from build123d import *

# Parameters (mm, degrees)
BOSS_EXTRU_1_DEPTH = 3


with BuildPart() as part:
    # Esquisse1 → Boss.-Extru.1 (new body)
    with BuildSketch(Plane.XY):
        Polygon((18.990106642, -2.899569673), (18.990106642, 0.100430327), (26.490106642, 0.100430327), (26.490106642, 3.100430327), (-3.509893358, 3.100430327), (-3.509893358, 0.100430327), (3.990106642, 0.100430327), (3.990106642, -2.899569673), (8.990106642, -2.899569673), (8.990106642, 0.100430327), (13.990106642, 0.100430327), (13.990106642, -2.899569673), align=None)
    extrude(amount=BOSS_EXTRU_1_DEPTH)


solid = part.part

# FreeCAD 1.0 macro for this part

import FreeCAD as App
import Part
import Sketcher
Q = App.Units.Quantity

doc = App.newDocument("Part")
body = doc.addObject("PartDesign::Body", "Body")

# Sketch on XY plane
sketch1 = body.newObject("Sketcher::SketchObject", "Sketch")
sketch1.AttachmentSupport = (doc.getObject("XY_Plane"), [""])
sketch1.MapMode = "FlatFace"
sketch1.addGeometry(Part.LineSegment(App.Vector(19, -2.9, 0), App.Vector(19, 0.1, 0)), False)
sketch1.addGeometry(Part.LineSegment(App.Vector(19, 0.1, 0), App.Vector(26.5, 0.1, 0)), False)
sketch1.addGeometry(Part.LineSegment(App.Vector(26.5, 0.1, 0), App.Vector(26.5, 3.1, 0)), False)
sketch1.addGeometry(Part.LineSegment(App.Vector(26.5, 3.1, 0), App.Vector(-3.5, 3.1, 0)), False)
sketch1.addGeometry(Part.LineSegment(App.Vector(-3.5, 3.1, 0), App.Vector(-3.5, 0.1, 0)), False)
sketch1.addGeometry(Part.LineSegment(App.Vector(-3.5, 0.1, 0), App.Vector(4, 0.1, 0)), False)
sketch1.addGeometry(Part.LineSegment(App.Vector(4, 0.1, 0), App.Vector(4, -2.9, 0)), False)
sketch1.addGeometry(Part.LineSegment(App.Vector(4, -2.9, 0), App.Vector(9, -2.9, 0)), False)
sketch1.addGeometry(Part.LineSegment(App.Vector(9, -2.9, 0), App.Vector(9, 0.1, 0)), False)
sketch1.addGeometry(Part.LineSegment(App.Vector(9, 0.1, 0), App.Vector(14, 0.1, 0)), False)
sketch1.addGeometry(Part.LineSegment(App.Vector(14, 0.1, 0), App.Vector(14, -2.9, 0)), False)
sketch1.addGeometry(Part.LineSegment(App.Vector(14, -2.9, 0), App.Vector(19, -2.9, 0)), False)
sketch1.addConstraint(Sketcher.Constraint("Coincident", 0, 2, 1, 1))
sketch1.addConstraint(Sketcher.Constraint("Coincident", 1, 2, 2, 1))
sketch1.addConstraint(Sketcher.Constraint("Coincident", 2, 2, 3, 1))
sketch1.addConstraint(Sketcher.Constraint("Coincident", 3, 2, 4, 1))
sketch1.addConstraint(Sketcher.Constraint("Coincident", 4, 2, 5, 1))
sketch1.addConstraint(Sketcher.Constraint("Coincident", 5, 2, 6, 1))
sketch1.addConstraint(Sketcher.Constraint("Coincident", 6, 2, 7, 1))
sketch1.addConstraint(Sketcher.Constraint("Coincident", 7, 2, 8, 1))
sketch1.addConstraint(Sketcher.Constraint("Coincident", 8, 2, 9, 1))
sketch1.addConstraint(Sketcher.Constraint("Coincident", 9, 2, 10, 1))
sketch1.addConstraint(Sketcher.Constraint("Coincident", 10, 2, 11, 1))
sketch1.addConstraint(Sketcher.Constraint("Coincident", 11, 2, 0, 1))
sketch1.addConstraint(Sketcher.Constraint("Vertical", 0))
sketch1.addConstraint(Sketcher.Constraint("Horizontal", 1))
sketch1.addConstraint(Sketcher.Constraint("Vertical", 2))
sketch1.addConstraint(Sketcher.Constraint("Horizontal", 3))
sketch1.addConstraint(Sketcher.Constraint("Vertical", 4))
sketch1.addConstraint(Sketcher.Constraint("Horizontal", 5))
sketch1.addConstraint(Sketcher.Constraint("Vertical", 6))
sketch1.addConstraint(Sketcher.Constraint("Horizontal", 7))
sketch1.addConstraint(Sketcher.Constraint("Vertical", 8))
sketch1.addConstraint(Sketcher.Constraint("Horizontal", 9))
sketch1.addConstraint(Sketcher.Constraint("Vertical", 10))
sketch1.addConstraint(Sketcher.Constraint("Horizontal", 11))
sketch1.addConstraint(Sketcher.Constraint("Horizontal", 1, 2, 4, 2))
sketch1.addConstraint(Sketcher.Constraint("Horizontal", 5, 2, 8, 2))
sketch1.addConstraint(Sketcher.Constraint("Horizontal", 7, 2, 10, 2))
sketch1.addConstraint(Sketcher.Constraint("Equal", 1, 5))
sketch1.addConstraint(Sketcher.Constraint("Equal", 7, 9))
sketch1.addConstraint(Sketcher.Constraint("Equal", 9, 11))
sketch1.addConstraint(Sketcher.Constraint("Equal", 0, 2))
sketch1.addConstraint(Sketcher.Constraint("DistanceX", 3, 2, 3, 1, Q("30 mm")))
sketch1.addConstraint(Sketcher.Constraint("DistanceX", 7, 1, 7, 2, Q("5 mm")))
sketch1.addConstraint(Sketcher.Constraint("DistanceY", 0, 1, 0, 2, Q("3 mm")))
sketch1.addConstraint(Sketcher.Constraint("DistanceY", -1, 1, 0, 2, Q("0.10043 mm")))
sketch1.addConstraint(Sketcher.Constraint("DistanceX", -1, 1, 0, 2, Q("18.990107 mm")))
pad1 = body.newObject("PartDesign::Pad", "Pad")
pad1.Profile = sketch1
pad1.Length = 3

doc.recompute()
